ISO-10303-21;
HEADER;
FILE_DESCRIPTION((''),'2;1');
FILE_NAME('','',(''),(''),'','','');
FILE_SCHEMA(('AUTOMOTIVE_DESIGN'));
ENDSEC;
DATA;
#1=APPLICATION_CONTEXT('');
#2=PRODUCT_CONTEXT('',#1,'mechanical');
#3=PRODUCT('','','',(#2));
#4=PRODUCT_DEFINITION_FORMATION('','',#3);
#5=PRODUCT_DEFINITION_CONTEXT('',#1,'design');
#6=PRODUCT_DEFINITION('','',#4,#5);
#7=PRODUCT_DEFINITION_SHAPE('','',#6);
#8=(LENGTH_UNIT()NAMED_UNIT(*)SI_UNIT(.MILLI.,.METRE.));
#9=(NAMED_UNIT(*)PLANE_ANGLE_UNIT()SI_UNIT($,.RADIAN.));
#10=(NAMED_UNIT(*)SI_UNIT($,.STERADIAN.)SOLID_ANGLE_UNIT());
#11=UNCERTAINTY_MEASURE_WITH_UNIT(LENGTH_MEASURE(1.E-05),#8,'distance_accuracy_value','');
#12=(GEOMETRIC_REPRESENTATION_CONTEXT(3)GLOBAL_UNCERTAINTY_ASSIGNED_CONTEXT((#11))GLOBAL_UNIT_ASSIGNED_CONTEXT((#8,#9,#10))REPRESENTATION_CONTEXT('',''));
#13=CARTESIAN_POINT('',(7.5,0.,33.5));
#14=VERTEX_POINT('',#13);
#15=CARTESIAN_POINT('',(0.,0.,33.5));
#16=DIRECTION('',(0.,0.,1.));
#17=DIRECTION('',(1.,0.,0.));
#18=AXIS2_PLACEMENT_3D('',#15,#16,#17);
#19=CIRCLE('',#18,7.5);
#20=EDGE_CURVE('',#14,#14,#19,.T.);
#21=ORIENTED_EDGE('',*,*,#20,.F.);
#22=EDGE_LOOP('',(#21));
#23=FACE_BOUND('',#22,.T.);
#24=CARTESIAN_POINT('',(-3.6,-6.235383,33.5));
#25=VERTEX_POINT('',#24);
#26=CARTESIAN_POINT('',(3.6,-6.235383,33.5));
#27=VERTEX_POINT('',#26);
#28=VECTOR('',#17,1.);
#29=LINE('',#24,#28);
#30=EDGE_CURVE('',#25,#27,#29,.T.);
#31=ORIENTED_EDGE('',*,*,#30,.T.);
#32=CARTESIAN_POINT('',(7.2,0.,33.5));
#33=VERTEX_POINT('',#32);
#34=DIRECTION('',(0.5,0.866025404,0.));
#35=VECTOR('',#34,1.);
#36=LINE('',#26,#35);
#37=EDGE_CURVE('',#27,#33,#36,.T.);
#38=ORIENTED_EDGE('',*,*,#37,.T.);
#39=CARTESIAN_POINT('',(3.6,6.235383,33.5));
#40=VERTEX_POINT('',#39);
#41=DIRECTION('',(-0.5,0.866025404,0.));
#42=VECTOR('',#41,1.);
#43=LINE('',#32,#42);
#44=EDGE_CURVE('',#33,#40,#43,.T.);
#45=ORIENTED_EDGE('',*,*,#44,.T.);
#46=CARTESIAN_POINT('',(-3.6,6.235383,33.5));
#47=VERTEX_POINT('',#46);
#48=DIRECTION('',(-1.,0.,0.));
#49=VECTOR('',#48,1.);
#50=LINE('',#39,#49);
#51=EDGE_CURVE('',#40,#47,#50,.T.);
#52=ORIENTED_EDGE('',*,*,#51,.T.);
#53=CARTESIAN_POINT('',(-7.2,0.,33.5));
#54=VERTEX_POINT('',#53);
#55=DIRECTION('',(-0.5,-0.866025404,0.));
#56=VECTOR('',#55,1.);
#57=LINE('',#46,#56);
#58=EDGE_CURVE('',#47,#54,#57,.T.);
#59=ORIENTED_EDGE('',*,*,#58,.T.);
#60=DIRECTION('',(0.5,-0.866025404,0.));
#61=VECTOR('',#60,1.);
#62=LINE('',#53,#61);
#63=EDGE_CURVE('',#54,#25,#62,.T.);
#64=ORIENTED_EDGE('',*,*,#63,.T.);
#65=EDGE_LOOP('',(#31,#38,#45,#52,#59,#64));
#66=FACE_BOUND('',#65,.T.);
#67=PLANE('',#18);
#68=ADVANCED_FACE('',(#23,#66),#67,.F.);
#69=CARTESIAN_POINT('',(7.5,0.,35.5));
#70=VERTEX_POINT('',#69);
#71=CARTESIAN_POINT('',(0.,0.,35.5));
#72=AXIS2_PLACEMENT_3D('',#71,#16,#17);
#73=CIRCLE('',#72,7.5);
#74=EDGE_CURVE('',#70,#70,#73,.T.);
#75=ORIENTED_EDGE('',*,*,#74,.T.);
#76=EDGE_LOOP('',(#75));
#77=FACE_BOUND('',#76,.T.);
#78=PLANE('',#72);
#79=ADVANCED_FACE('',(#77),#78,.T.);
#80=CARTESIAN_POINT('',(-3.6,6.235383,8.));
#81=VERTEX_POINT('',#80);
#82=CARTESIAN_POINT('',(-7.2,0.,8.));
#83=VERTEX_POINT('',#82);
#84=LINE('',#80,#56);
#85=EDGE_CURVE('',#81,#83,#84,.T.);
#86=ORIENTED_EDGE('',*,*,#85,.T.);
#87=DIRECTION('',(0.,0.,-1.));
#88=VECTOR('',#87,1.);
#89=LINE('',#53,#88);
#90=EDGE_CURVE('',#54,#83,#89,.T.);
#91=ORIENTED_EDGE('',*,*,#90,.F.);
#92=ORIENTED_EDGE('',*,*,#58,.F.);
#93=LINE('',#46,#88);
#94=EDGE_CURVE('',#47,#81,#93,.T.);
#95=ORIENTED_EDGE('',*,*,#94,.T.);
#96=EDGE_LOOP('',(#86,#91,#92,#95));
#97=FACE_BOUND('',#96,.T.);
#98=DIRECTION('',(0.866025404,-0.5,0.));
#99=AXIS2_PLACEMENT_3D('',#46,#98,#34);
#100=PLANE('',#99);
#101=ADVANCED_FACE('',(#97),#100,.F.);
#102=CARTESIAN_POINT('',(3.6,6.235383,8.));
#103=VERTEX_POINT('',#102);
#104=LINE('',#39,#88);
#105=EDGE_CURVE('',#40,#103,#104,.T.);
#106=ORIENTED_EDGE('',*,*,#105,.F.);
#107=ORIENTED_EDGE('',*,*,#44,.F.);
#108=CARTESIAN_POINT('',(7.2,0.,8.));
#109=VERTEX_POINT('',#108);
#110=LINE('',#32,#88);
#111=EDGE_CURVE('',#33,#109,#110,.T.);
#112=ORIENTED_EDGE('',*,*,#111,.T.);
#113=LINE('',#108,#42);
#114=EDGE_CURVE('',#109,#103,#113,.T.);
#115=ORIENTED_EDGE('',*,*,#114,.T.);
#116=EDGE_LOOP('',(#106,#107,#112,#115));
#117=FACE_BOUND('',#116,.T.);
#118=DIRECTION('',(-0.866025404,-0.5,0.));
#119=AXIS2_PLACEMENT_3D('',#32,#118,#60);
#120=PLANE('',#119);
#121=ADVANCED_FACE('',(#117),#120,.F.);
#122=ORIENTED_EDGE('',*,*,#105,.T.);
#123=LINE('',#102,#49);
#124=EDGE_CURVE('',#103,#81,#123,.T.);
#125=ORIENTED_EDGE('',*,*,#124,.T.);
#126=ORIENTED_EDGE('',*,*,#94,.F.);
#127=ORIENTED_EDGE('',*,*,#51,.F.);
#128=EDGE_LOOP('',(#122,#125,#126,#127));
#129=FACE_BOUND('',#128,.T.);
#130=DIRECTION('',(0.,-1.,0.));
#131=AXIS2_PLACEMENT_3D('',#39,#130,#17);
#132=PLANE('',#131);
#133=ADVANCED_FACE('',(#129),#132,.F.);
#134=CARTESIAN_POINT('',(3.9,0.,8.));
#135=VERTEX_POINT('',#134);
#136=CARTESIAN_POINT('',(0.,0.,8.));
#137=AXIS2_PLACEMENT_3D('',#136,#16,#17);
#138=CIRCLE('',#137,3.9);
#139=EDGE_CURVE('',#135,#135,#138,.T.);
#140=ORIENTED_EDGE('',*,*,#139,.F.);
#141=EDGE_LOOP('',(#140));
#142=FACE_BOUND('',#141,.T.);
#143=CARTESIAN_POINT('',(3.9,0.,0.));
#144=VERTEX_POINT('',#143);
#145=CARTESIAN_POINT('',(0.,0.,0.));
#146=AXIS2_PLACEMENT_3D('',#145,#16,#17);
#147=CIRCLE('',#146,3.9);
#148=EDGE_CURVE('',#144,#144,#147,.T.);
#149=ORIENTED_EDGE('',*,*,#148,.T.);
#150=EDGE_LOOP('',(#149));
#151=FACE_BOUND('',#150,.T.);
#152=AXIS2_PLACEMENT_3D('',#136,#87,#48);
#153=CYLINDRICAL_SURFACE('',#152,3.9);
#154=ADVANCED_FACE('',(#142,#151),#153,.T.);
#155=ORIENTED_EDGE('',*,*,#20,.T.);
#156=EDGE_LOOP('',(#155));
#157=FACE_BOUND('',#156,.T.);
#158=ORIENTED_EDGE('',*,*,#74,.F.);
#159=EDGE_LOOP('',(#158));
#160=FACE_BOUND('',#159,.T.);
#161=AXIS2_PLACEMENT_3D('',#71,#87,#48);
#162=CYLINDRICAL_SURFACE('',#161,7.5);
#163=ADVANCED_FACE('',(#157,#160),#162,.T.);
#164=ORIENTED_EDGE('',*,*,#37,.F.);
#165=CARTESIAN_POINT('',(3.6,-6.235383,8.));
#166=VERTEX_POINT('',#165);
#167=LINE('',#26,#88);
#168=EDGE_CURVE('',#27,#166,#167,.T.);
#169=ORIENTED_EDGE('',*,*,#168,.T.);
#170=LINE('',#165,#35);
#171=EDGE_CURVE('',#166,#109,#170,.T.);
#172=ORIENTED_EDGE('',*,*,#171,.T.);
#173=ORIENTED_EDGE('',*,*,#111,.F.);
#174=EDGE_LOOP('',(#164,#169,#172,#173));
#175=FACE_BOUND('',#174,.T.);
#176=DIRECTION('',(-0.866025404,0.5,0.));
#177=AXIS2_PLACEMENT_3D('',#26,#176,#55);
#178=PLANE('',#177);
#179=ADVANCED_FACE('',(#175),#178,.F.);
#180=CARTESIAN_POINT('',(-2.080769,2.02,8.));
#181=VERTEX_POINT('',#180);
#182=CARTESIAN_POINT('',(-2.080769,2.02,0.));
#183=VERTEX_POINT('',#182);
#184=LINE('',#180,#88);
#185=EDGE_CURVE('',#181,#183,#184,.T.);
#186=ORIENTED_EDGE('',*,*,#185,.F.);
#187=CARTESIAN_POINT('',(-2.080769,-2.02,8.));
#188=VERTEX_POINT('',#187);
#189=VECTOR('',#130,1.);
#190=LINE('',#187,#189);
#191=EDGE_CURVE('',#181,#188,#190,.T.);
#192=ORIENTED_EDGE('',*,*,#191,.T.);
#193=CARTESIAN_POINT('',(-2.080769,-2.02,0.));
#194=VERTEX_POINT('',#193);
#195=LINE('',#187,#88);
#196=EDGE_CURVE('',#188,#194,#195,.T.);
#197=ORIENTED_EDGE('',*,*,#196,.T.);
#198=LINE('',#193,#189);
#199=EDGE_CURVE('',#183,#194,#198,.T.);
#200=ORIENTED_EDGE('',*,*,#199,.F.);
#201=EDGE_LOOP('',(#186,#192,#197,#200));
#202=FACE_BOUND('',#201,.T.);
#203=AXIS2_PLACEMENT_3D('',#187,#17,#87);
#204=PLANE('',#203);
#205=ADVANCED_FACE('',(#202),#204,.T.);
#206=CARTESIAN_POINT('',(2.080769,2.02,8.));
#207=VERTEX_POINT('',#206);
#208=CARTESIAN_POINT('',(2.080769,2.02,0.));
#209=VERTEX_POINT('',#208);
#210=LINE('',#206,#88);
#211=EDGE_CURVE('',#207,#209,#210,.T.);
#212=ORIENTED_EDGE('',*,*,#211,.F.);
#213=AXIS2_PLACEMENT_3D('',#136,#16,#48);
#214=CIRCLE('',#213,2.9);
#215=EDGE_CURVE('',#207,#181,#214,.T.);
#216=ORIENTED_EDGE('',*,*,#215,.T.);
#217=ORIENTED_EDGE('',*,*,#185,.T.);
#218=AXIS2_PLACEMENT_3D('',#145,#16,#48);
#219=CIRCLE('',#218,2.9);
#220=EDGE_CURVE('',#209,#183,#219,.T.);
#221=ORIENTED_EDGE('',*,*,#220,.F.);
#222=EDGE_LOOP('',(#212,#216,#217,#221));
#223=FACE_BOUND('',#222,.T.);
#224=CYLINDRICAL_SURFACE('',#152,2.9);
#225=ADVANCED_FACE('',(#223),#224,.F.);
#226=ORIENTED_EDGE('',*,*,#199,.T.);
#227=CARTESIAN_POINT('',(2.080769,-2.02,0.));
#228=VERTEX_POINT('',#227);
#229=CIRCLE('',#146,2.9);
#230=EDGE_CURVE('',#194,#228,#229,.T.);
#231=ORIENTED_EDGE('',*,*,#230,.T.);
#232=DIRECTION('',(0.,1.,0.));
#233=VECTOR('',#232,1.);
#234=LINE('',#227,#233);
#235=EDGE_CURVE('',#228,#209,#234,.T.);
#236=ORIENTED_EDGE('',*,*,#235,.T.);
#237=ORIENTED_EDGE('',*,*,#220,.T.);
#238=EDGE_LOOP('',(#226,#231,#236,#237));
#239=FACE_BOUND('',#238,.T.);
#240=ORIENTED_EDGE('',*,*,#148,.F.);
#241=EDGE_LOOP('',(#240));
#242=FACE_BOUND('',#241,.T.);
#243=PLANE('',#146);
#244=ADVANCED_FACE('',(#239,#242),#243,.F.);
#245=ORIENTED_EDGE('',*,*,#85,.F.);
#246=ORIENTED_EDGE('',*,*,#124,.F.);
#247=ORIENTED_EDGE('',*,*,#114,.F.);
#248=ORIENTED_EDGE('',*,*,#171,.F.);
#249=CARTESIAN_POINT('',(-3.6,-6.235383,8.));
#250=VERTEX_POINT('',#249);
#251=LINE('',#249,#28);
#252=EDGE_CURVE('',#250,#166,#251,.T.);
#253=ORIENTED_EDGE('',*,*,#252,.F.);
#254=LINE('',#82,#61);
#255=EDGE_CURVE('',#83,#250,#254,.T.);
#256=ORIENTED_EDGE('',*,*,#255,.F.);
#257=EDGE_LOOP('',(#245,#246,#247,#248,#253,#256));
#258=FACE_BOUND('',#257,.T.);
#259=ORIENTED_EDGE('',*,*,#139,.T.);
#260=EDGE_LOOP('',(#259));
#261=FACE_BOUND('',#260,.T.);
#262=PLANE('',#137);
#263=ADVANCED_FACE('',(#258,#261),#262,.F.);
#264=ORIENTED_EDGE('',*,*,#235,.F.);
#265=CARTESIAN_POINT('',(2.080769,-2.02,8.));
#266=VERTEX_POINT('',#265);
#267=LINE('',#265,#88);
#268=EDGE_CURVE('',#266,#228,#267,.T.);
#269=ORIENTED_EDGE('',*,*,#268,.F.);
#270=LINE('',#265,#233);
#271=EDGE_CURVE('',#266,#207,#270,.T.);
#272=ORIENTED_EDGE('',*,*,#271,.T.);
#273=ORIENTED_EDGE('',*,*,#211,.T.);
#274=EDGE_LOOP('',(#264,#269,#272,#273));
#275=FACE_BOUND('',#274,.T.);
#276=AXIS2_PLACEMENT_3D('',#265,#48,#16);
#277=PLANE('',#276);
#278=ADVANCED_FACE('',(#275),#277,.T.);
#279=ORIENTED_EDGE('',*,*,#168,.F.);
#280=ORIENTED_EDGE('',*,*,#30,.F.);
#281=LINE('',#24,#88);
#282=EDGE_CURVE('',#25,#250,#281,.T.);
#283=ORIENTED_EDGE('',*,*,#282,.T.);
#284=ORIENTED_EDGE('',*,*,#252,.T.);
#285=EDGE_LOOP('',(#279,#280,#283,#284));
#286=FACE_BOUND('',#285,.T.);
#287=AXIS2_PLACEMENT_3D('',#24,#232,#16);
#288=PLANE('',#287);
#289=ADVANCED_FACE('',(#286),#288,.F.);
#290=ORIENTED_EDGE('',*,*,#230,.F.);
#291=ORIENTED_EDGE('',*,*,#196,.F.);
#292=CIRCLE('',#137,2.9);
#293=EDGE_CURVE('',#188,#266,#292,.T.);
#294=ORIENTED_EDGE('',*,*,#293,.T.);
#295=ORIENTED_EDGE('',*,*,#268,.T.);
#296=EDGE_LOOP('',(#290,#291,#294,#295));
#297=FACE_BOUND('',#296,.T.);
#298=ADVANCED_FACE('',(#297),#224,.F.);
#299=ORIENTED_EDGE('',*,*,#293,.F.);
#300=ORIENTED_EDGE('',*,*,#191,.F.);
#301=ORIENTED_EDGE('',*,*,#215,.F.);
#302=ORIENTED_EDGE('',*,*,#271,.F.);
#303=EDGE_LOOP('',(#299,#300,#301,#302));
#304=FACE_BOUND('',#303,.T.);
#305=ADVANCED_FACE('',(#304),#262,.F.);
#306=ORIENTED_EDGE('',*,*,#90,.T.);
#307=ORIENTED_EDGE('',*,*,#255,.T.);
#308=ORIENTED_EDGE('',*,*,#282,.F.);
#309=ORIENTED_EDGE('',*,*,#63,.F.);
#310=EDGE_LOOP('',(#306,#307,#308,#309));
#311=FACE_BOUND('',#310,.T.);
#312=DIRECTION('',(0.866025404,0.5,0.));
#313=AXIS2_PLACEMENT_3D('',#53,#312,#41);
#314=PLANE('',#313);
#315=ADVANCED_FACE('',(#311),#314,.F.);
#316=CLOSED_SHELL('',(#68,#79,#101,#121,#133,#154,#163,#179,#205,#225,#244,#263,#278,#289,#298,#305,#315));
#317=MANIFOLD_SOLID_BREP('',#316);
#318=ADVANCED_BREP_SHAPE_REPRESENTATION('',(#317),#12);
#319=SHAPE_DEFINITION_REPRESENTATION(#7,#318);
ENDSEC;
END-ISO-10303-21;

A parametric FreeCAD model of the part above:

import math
import FreeCAD as App
import Part
import Sketcher
Q = App.Units.Quantity


def add_polygon(sketch, points):
    """Adds a closed chain of lines whose ends are joined by coincident constraints."""
    first, n = sketch.GeometryCount, len(points)
    for a, b in zip(points, points[1:] + points[:1]):
        sketch.addGeometry(Part.LineSegment(App.Vector(*a, 0), App.Vector(*b, 0)), False)
    for i in range(n):
        sketch.addConstraint(Sketcher.Constraint("Coincident", first + i, 2, first + (i + 1) % n, 1))

doc = App.newDocument("Part")
body = doc.addObject("PartDesign::Body", "Body")

sketch1 = doc.addObject("Sketcher::SketchObject", "Sketch")
body.addObject(sketch1)
sketch1.AttachmentSupport = (doc.XY_Plane, [""])
sketch1.MapMode = "FlatFace"
sketch1.addGeometry([
    Part.Circle(App.Vector(0, 0, 0), App.Vector(0, 0, 1), 3.9),
    Part.ArcOfCircle(Part.Circle(App.Vector(0, 0, 0), App.Vector(0, 0, 1), 2.9), math.radians(-136), math.radians(-44)),
    Part.LineSegment(App.Vector(-2.1, -2, 0), App.Vector(-2.1, 2, 0)),
    Part.ArcOfCircle(Part.Circle(App.Vector(0, 0, 0), App.Vector(0, 0, 1), 2.9), math.radians(44), math.radians(136)),
    Part.LineSegment(App.Vector(2.1, 2, 0), App.Vector(2.1, -2, 0)),
], False)
sketch1.addConstraint([
    Sketcher.Constraint("Coincident", 1, 1, 2, 1),
    Sketcher.Constraint("Coincident", 2, 2, 3, 2),
    Sketcher.Constraint("Coincident", 3, 1, 4, 1),
    Sketcher.Constraint("Coincident", 4, 2, 1, 2),
    Sketcher.Constraint("Vertical", 2),
    Sketcher.Constraint("Vertical", 4),
    Sketcher.Constraint("Coincident", 0, 3, -1, 1),
    Sketcher.Constraint("Coincident", 1, 3, -1, 1),
    Sketcher.Constraint("Coincident", 3, 3, -1, 1),
    Sketcher.Constraint("Equal", 1, 3),
    Sketcher.Constraint("Horizontal", 2, 2, 3, 1),
    Sketcher.Constraint("Diameter", 0, Q("7.8 mm")),
    Sketcher.Constraint("Radius", 1, Q("2.9 mm")),
    Sketcher.Constraint("DistanceY", 2, 1, 2, 2, Q("4.04 mm")),
])
pad1 = doc.addObject("PartDesign::Pad", "Pad")
body.addObject(pad1)
pad1.Profile = sketch1
pad1.Length = 8

sketch2 = doc.addObject("Sketcher::SketchObject", "Sketch001")
body.addObject(sketch2)
sketch2.AttachmentSupport = (doc.XY_Plane, [""])
sketch2.MapMode = "FlatFace"
sketch2.AttachmentOffset = App.Placement(App.Vector(0, 0, 8), App.Rotation())
add_polygon(sketch2, [(4, 6), (-4, 6), (-7, 0), (-4, -6), (4, -6), (7, 0)])
sketch2.addConstraint([
    Sketcher.Constraint("Horizontal", 0),
    Sketcher.Constraint("Horizontal", 3),
    Sketcher.Constraint("Symmetric", 0, 2, 3, 2, -1, 1),
    Sketcher.Constraint("Symmetric", 1, 2, 4, 2, -1, 1),
    Sketcher.Constraint("PointOnObject", 1, 2, -1),
    Sketcher.Constraint("Parallel", 2, 5),
    Sketcher.Constraint("Vertical", 0, 2, 2, 2),
    Sketcher.Constraint("Angle", 1, Q("-120 deg")),
    Sketcher.Constraint("DistanceX", 0, 2, 0, 1, Q("7.2 mm")),
    Sketcher.Constraint("Distance", 1, Q("7.2 mm")),
])
pad2 = doc.addObject("PartDesign::Pad", "Pad001")
body.addObject(pad2)
pad2.Profile = sketch2
pad2.Length = 25.5

sketch3 = doc.addObject("Sketcher::SketchObject", "Sketch002")
body.addObject(sketch3)
sketch3.AttachmentSupport = (doc.XY_Plane, [""])
sketch3.MapMode = "FlatFace"
sketch3.AttachmentOffset = App.Placement(App.Vector(0, 0, 33.5), App.Rotation())
sketch3.addGeometry(Part.Circle(App.Vector(0, 0, 0), App.Vector(0, 0, 1), 8), False)
sketch3.addConstraint([
    Sketcher.Constraint("Coincident", 0, 3, -1, 1),
    Sketcher.Constraint("Diameter", 0, Q("15 mm")),
])
pad3 = doc.addObject("PartDesign::Pad", "Pad002")
body.addObject(pad3)
pad3.Profile = sketch3
pad3.Length = 2

doc.recompute()
